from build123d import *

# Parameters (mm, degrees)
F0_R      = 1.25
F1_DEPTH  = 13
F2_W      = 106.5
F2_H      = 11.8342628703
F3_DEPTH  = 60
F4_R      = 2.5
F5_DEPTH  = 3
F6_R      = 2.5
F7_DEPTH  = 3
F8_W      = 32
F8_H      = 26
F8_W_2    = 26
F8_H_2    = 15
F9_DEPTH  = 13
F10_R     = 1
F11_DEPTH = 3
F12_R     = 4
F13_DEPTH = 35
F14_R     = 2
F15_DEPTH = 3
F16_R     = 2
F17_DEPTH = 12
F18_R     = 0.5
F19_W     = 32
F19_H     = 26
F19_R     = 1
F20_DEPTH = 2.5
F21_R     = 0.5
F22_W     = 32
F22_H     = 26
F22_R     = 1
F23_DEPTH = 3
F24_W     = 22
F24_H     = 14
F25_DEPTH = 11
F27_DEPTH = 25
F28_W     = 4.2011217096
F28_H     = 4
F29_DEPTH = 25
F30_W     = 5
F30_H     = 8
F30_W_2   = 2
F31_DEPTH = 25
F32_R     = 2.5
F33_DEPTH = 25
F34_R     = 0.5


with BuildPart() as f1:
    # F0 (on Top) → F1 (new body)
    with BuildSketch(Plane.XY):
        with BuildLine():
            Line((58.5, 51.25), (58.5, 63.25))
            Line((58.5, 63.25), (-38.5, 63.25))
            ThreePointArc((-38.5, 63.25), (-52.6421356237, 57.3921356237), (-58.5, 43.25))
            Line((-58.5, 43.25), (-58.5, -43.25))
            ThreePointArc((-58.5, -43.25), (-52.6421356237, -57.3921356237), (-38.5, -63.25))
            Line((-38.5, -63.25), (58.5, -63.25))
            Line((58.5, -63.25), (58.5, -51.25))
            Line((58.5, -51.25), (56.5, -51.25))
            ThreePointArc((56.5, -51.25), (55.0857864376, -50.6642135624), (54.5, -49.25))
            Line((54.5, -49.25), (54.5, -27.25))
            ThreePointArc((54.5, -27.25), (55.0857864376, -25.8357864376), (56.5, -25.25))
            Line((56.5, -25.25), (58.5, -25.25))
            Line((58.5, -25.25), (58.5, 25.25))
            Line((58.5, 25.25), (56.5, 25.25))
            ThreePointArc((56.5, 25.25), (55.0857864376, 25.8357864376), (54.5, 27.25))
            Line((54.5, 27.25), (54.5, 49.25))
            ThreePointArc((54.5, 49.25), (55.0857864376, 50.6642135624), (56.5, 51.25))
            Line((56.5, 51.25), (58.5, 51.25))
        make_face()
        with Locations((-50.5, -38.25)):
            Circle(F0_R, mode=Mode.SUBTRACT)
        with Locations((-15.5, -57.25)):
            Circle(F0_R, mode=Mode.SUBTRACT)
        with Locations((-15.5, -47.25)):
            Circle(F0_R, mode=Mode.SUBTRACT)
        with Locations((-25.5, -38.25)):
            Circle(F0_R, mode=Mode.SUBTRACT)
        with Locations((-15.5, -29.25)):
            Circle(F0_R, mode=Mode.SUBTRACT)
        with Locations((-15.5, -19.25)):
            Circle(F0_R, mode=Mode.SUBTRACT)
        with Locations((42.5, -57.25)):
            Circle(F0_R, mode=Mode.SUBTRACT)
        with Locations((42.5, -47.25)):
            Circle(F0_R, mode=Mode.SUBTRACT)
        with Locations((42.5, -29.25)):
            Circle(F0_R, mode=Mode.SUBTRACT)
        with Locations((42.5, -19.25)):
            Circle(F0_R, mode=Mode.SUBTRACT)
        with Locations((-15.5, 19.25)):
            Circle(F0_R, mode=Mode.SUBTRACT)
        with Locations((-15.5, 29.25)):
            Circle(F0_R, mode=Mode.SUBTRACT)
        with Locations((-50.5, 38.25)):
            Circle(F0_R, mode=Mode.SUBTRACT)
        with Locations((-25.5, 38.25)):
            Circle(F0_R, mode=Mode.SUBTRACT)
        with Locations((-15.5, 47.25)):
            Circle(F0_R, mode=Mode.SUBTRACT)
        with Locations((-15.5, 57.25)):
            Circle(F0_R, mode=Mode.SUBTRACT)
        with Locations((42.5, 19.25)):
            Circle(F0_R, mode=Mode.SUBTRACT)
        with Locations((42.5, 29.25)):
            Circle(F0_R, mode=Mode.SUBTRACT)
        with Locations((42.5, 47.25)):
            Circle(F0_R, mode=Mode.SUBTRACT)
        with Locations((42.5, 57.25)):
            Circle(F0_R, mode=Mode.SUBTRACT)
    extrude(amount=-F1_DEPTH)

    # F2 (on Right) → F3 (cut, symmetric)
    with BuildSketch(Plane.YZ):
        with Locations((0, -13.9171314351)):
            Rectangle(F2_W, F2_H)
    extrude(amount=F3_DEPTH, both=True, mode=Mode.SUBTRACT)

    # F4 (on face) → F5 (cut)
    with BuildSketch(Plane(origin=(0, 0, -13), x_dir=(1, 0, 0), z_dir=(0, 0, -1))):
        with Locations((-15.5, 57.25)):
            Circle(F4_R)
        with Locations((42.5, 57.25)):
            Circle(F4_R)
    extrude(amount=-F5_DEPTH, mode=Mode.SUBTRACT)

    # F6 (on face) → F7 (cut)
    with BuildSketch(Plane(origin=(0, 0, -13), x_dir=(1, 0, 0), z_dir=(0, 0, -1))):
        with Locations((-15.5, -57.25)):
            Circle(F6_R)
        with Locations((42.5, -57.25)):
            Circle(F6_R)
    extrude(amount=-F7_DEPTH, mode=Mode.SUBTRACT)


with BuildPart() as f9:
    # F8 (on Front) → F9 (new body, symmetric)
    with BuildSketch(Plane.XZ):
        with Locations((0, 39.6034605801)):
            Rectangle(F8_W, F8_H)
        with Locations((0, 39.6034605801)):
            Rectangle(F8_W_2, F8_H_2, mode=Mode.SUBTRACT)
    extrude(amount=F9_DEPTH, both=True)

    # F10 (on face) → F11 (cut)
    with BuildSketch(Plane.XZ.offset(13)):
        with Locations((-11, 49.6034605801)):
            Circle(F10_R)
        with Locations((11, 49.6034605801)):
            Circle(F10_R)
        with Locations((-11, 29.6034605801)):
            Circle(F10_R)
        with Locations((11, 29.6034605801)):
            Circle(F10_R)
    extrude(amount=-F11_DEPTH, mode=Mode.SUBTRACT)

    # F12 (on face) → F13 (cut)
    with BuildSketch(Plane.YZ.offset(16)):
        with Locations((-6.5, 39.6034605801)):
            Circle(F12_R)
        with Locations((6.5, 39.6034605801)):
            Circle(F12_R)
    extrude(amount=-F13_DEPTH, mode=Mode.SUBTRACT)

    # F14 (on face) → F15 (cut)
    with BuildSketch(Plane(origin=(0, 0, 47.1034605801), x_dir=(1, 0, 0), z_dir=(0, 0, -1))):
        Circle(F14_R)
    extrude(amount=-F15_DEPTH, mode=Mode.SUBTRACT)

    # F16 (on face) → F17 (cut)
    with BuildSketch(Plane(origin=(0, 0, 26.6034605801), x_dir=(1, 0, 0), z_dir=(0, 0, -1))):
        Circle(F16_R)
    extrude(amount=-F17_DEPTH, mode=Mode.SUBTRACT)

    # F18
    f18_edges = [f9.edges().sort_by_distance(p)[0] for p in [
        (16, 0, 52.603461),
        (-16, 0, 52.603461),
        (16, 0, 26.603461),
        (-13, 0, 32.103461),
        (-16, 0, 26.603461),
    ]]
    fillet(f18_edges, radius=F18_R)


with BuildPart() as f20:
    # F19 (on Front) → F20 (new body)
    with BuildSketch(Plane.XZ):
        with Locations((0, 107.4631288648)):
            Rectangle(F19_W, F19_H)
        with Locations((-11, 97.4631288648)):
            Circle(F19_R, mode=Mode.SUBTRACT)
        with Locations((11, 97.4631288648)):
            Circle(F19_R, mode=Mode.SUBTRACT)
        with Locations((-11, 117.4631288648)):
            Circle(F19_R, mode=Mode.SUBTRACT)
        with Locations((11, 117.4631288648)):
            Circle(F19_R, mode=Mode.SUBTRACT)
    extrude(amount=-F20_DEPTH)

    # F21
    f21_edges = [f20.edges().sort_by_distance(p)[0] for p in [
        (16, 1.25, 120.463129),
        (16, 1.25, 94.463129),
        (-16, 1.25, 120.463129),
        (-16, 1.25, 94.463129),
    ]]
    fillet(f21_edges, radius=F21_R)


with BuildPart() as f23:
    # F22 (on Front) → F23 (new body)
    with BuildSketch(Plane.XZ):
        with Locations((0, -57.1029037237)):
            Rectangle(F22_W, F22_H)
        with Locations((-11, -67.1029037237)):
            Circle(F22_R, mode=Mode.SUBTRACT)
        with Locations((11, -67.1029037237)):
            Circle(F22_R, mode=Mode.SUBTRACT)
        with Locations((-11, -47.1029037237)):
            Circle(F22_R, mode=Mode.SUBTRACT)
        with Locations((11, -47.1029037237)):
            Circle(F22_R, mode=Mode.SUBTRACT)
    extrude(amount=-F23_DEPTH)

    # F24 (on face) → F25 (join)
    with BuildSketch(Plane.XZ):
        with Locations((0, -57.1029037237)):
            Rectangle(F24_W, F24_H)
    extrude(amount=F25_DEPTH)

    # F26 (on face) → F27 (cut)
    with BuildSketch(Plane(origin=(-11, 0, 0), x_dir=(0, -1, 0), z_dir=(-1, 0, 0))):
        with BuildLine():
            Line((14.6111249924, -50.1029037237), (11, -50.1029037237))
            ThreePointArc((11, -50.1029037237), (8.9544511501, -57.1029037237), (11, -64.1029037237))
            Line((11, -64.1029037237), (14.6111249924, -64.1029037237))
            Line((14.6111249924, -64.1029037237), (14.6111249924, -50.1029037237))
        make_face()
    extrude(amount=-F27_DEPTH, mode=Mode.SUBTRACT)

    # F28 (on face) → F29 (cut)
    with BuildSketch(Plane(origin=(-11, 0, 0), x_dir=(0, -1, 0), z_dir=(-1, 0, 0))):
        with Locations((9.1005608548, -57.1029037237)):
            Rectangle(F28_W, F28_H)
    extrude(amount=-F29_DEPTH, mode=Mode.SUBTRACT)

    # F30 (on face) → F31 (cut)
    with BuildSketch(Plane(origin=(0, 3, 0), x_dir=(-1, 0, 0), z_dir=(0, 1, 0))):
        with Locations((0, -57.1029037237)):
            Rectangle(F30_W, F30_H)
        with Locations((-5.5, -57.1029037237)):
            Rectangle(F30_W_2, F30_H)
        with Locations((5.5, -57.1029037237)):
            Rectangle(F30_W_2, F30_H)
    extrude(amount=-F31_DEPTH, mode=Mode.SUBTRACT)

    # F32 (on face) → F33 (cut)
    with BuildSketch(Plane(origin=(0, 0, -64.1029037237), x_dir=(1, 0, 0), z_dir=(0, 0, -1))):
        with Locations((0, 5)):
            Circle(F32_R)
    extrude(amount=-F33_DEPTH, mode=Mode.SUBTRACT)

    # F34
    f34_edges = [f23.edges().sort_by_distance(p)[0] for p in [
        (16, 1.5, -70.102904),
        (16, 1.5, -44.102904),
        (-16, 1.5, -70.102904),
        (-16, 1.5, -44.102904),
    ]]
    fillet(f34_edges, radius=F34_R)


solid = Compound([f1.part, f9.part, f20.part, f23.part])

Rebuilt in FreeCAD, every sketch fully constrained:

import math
import FreeCAD as App
import Part
import Sketcher
Q = App.Units.Quantity


def edges_at(feature, points):
    """Names of the edges that pass closest to the given points."""
    edges = feature.Shape.Edges
    near = lambda p: min(range(len(edges)), key=lambda i: edges[i].distToShape(Part.Vertex(*p))[0])
    return sorted({f"Edge{near(p) + 1}" for p in points})


def add_polygon(sketch, points):
    """Adds a closed chain of lines whose ends are joined by coincident constraints."""
    first, n = sketch.GeometryCount, len(points)
    for a, b in zip(points, points[1:] + points[:1]):
        sketch.addGeometry(Part.LineSegment(App.Vector(*a, 0), App.Vector(*b, 0)), False)
    for i in range(n):
        sketch.addConstraint(Sketcher.Constraint("Coincident", first + i, 2, first + (i + 1) % n, 1))

doc = App.newDocument("Part")
body = doc.addObject("PartDesign::Body", "Body")

# Sketch on XY plane
sketch1 = doc.addObject("Sketcher::SketchObject", "Sketch")
body.addObject(sketch1)
sketch1.AttachmentSupport = (doc.XY_Plane, [""])
sketch1.MapMode = "FlatFace"
sketch1.addGeometry([
    Part.LineSegment(App.Vector(58.5, 51.2, 0), App.Vector(58.5, 63.2, 0)),  # 0
    Part.LineSegment(App.Vector(58.5, 63.2, 0), App.Vector(-38.5, 63.2, 0)),  # 1
    Part.ArcOfCircle(Part.Circle(App.Vector(-38.5, 43.2, 0), App.Vector(0, 0, 1), 20), math.radians(90), math.radians(180)),  # 2
    Part.LineSegment(App.Vector(-58.5, 43.2, 0), App.Vector(-58.5, -43.2, 0)),  # 3
    Part.ArcOfCircle(Part.Circle(App.Vector(-38.5, -43.2, 0), App.Vector(0, 0, 1), 20), math.radians(180), math.radians(270)),  # 4
    Part.LineSegment(App.Vector(-38.5, -63.2, 0), App.Vector(58.5, -63.2, 0)),  # 5
    Part.LineSegment(App.Vector(58.5, -63.2, 0), App.Vector(58.5, -51.2, 0)),  # 6
    Part.LineSegment(App.Vector(58.5, -51.2, 0), App.Vector(56.5, -51.2, 0)),  # 7
    Part.ArcOfCircle(Part.Circle(App.Vector(56.5, -49.2, 0), App.Vector(0, 0, 1), 2), math.radians(180), math.radians(270)),  # 8
    Part.LineSegment(App.Vector(54.5, -49.2, 0), App.Vector(54.5, -27.2, 0)),  # 9
    Part.ArcOfCircle(Part.Circle(App.Vector(56.5, -27.2, 0), App.Vector(0, 0, 1), 2), math.radians(90), math.radians(180)),  # 10
    Part.LineSegment(App.Vector(56.5, -25.2, 0), App.Vector(58.5, -25.2, 0)),  # 11
    Part.LineSegment(App.Vector(58.5, -25.2, 0), App.Vector(58.5, 25.2, 0)),  # 12
    Part.LineSegment(App.Vector(58.5, 25.2, 0), App.Vector(56.5, 25.2, 0)),  # 13
    Part.ArcOfCircle(Part.Circle(App.Vector(56.5, 27.2, 0), App.Vector(0, 0, 1), 2), math.radians(180), math.radians(270)),  # 14
    Part.LineSegment(App.Vector(54.5, 27.2, 0), App.Vector(54.5, 49.2, 0)),  # 15
    Part.ArcOfCircle(Part.Circle(App.Vector(56.5, 49.2, 0), App.Vector(0, 0, 1), 2), math.radians(90), math.radians(180)),  # 16
    Part.LineSegment(App.Vector(56.5, 51.2, 0), App.Vector(58.5, 51.2, 0)),  # 17
    Part.Circle(App.Vector(-50.5, -38.2, 0), App.Vector(0, 0, 1), 1.2),  # 18
    Part.Circle(App.Vector(-15.5, -57.2, 0), App.Vector(0, 0, 1), 1.2),  # 19
    Part.Circle(App.Vector(-15.5, -47.2, 0), App.Vector(0, 0, 1), 1.2),  # 20
    Part.Circle(App.Vector(-25.5, -38.2, 0), App.Vector(0, 0, 1), 1.2),  # 21
    Part.Circle(App.Vector(-15.5, -29.2, 0), App.Vector(0, 0, 1), 1.2),  # 22
    Part.Circle(App.Vector(-15.5, -19.2, 0), App.Vector(0, 0, 1), 1.2),  # 23
    Part.Circle(App.Vector(42.5, -57.2, 0), App.Vector(0, 0, 1), 1.2),  # 24
    Part.Circle(App.Vector(42.5, -47.2, 0), App.Vector(0, 0, 1), 1.2),  # 25
    Part.Circle(App.Vector(42.5, -29.2, 0), App.Vector(0, 0, 1), 1.2),  # 26
    Part.Circle(App.Vector(42.5, -19.2, 0), App.Vector(0, 0, 1), 1.2),  # 27
    Part.Circle(App.Vector(-15.5, 19.2, 0), App.Vector(0, 0, 1), 1.2),  # 28
    Part.Circle(App.Vector(-50.5, 38.2, 0), App.Vector(0, 0, 1), 1.2),  # 29
    Part.Circle(App.Vector(-25.5, 38.2, 0), App.Vector(0, 0, 1), 1.2),  # 30
    Part.Circle(App.Vector(-15.5, 29.2, 0), App.Vector(0, 0, 1), 1.2),  # 31
    Part.Circle(App.Vector(-15.5, 47.2, 0), App.Vector(0, 0, 1), 1.2),  # 32
    Part.Circle(App.Vector(-15.5, 57.2, 0), App.Vector(0, 0, 1), 1.2),  # 33
    Part.Circle(App.Vector(42.5, 19.2, 0), App.Vector(0, 0, 1), 1.2),  # 34
    Part.Circle(App.Vector(42.5, 29.2, 0), App.Vector(0, 0, 1), 1.2),  # 35
    Part.Circle(App.Vector(42.5, 47.2, 0), App.Vector(0, 0, 1), 1.2),  # 36
    Part.Circle(App.Vector(42.5, 57.2, 0), App.Vector(0, 0, 1), 1.2),  # 37
], False)
sketch1.addConstraint([
    Sketcher.Constraint("Coincident", 0, 2, 1, 1),
    Sketcher.Constraint("Tangent", 1, 2, 2, 1),
    Sketcher.Constraint("Tangent", 2, 2, 3, 1),
    Sketcher.Constraint("Tangent", 3, 2, 4, 1),
    Sketcher.Constraint("Tangent", 4, 2, 5, 1),
    Sketcher.Constraint("Coincident", 5, 2, 6, 1),
    Sketcher.Constraint("Coincident", 6, 2, 7, 1),
    Sketcher.Constraint("Tangent", 7, 2, 8, 2),
    Sketcher.Constraint("Tangent", 8, 1, 9, 1),
    Sketcher.Constraint("Tangent", 9, 2, 10, 2),
    Sketcher.Constraint("Tangent", 10, 1, 11, 1),
    Sketcher.Constraint("Coincident", 11, 2, 12, 1),
    Sketcher.Constraint("Coincident", 12, 2, 13, 1),
    Sketcher.Constraint("Tangent", 13, 2, 14, 2),
    Sketcher.Constraint("Tangent", 14, 1, 15, 1),
    Sketcher.Constraint("Tangent", 15, 2, 16, 2),
    Sketcher.Constraint("Tangent", 16, 1, 17, 1),
    Sketcher.Constraint("Coincident", 17, 2, 0, 1),
    Sketcher.Constraint("Vertical", 0),
    Sketcher.Constraint("Horizontal", 1),
    Sketcher.Constraint("Vertical", 3),
    Sketcher.Constraint("Horizontal", 5),
    Sketcher.Constraint("Vertical", 6),
    Sketcher.Constraint("Horizontal", 7),
    Sketcher.Constraint("Vertical", 9),
    Sketcher.Constraint("Horizontal", 11),
    Sketcher.Constraint("Vertical", 12),
    Sketcher.Constraint("Horizontal", 13),
    Sketcher.Constraint("Vertical", 15),
    Sketcher.Constraint("Horizontal", 17),
    Sketcher.Constraint("Equal", 2, 4),
    Sketcher.Constraint("Equal", 8, 10),
    Sketcher.Constraint("Equal", 10, 14),
    Sketcher.Constraint("Equal", 14, 16),
    Sketcher.Constraint("Equal", 18, 19),
    Sketcher.Constraint("Equal", 19, 20),
    Sketcher.Constraint("Equal", 20, 21),
    Sketcher.Constraint("Equal", 21, 22),
    Sketcher.Constraint("Equal", 22, 23),
    Sketcher.Constraint("Equal", 23, 24),
    Sketcher.Constraint("Equal", 24, 25),
    Sketcher.Constraint("Equal", 25, 26),
    Sketcher.Constraint("Equal", 26, 27),
    Sketcher.Constraint("Equal", 27, 28),
    Sketcher.Constraint("Equal", 28, 29),
    Sketcher.Constraint("Equal", 29, 30),
    Sketcher.Constraint("Equal", 30, 31),
    Sketcher.Constraint("Equal", 31, 32),
    Sketcher.Constraint("Equal", 32, 33),
    Sketcher.Constraint("Equal", 33, 34),
    Sketcher.Constraint("Equal", 34, 35),
    Sketcher.Constraint("Equal", 35, 36),
    Sketcher.Constraint("Equal", 36, 37),
    Sketcher.Constraint("Symmetric", 10, 3, 14, 3, -1),
    Sketcher.Constraint("Symmetric", 23, 3, 28, 3, -1),
    Sketcher.Constraint("Symmetric", 18, 3, 29, 3, -1),
    Sketcher.Constraint("Symmetric", 21, 3, 30, 3, -1),
    Sketcher.Constraint("Symmetric", 22, 3, 31, 3, -1),
    Sketcher.Constraint("Symmetric", 20, 3, 32, 3, -1),
    Sketcher.Constraint("Symmetric", 19, 3, 33, 3, -1),
    Sketcher.Constraint("Symmetric", 27, 3, 34, 3, -1),
    Sketcher.Constraint("Symmetric", 26, 3, 35, 3, -1),
    Sketcher.Constraint("Symmetric", 25, 3, 36, 3, -1),
    Sketcher.Constraint("Symmetric", 24, 3, 37, 3, -1),
    Sketcher.Constraint("Symmetric", 0, 2, 5, 2, -1),
    Sketcher.Constraint("Horizontal", 18, 3, 21, 3),
    Sketcher.Constraint("Horizontal", 19, 3, 24, 3),
    Sketcher.Constraint("Horizontal", 20, 3, 25, 3),
    Sketcher.Constraint("Horizontal", 22, 3, 26, 3),
    Sketcher.Constraint("Horizontal", 23, 3, 27, 3),
    Sketcher.Constraint("Vertical", 19, 3, 20, 3),
    Sketcher.Constraint("Vertical", 20, 3, 22, 3),
    Sketcher.Constraint("Vertical", 22, 3, 23, 3),
    Sketcher.Constraint("Vertical", 24, 3, 25, 3),
    Sketcher.Constraint("Vertical", 25, 3, 26, 3),
    Sketcher.Constraint("Vertical", 26, 3, 27, 3),
    Sketcher.Constraint("Vertical", 6, 2, 11, 2),
    Sketcher.Constraint("Equal", 0, 6),
    Sketcher.Constraint("Radius", 2, Q("20 mm")),
    Sketcher.Constraint("Radius", 8, Q("2 mm")),
    Sketcher.Constraint("Diameter", 18, Q("2.5 mm")),
    Sketcher.Constraint("DistanceX", 1, 2, 1, 1, Q("97 mm")),
    Sketcher.Constraint("DistanceX", 7, 2, 7, 1, Q("2 mm")),
    Sketcher.Constraint("DistanceY", 0, 1, 0, 2, Q("12 mm")),
    Sketcher.Constraint("DistanceY", 9, 1, 9, 2, Q("22 mm")),
    Sketcher.Constraint("DistanceY", 3, 2, 3, 1, Q("86.5 mm")),
    Sketcher.Constraint("DistanceX", 18, 3, 4, 3, Q("12 mm")),
    Sketcher.Constraint("DistanceY", 4, 3, 18, 3, Q("5 mm")),
    Sketcher.Constraint("DistanceX", 4, 3, 19, 3, Q("23 mm")),
    Sketcher.Constraint("DistanceY", 19, 3, 4, 3, Q("14 mm")),
    Sketcher.Constraint("DistanceY", 19, 3, 20, 3, Q("10 mm")),
    Sketcher.Constraint("DistanceX", 21, 3, 20, 3, Q("10 mm")),
    Sketcher.Constraint("DistanceY", 21, 3, 22, 3, Q("9 mm")),
    Sketcher.Constraint("DistanceY", 22, 3, 23, 3, Q("10 mm")),
    Sketcher.Constraint("DistanceX", 24, 3, 8, 3, Q("14 mm")),
    Sketcher.Constraint("DistanceX", 2, 3, -1, 1, Q("38.5 mm")),
])
pad1 = doc.addObject("PartDesign::Pad", "Pad")
body.addObject(pad1)
pad1.Profile = sketch1
pad1.Length = 13
pad1.Reversed = True

# Sketch on YZ plane
sketch2 = doc.addObject("Sketcher::SketchObject", "Sketch001")
body.addObject(sketch2)
sketch2.AttachmentSupport = (doc.YZ_Plane, [""])
sketch2.MapMode = "FlatFace"
add_polygon(sketch2, [(-53, -8), (-53, -20), (53, -20), (53, -8)])  # lines 0-3
sketch2.addConstraint([
    Sketcher.Constraint("Vertical", 0),
    Sketcher.Constraint("Horizontal", 1),
    Sketcher.Constraint("Vertical", 2),
    Sketcher.Constraint("Horizontal", 3),
    Sketcher.Constraint("DistanceX", 1, 1, 1, 2, Q("106.5 mm")),
    Sketcher.Constraint("DistanceY", 2, 2, -1, 1, Q("8 mm")),
    Sketcher.Constraint("DistanceX", 0, 2, -1, 1, Q("53.25 mm")),
    Sketcher.Constraint("DistanceY", 0, 2, 0, 1, Q("11.834263 mm")),
])
pocket1 = doc.addObject("PartDesign::Pocket", "Pocket")
body.addObject(pocket1)
pocket1.Profile = sketch2
pocket1.Length = 120
pocket1.Midplane = True

# Sketch on XY plane
sketch3 = doc.addObject("Sketcher::SketchObject", "Sketch002")
body.addObject(sketch3)
sketch3.AttachmentSupport = (doc.XY_Plane, [""])
sketch3.MapMode = "FlatFace"
sketch3.AttachmentOffset = App.Placement(App.Vector(0, 0, -13), App.Rotation())
sketch3.addGeometry([
    Part.Circle(App.Vector(-15.5, -57.2, 0), App.Vector(0, 0, 1), 2.5),
    Part.Circle(App.Vector(42.5, -57.2, 0), App.Vector(0, 0, 1), 2.5),
], False)
sketch3.addConstraint([
    Sketcher.Constraint("Equal", 0, 1),
    Sketcher.Constraint("Horizontal", 0, 3, 1, 3),
    Sketcher.Constraint("Diameter", 0, Q("5 mm")),
    Sketcher.Constraint("DistanceX", 0, 3, 1, 3, Q("58 mm")),
    Sketcher.Constraint("DistanceX", 0, 3, -1, 1, Q("15.5 mm")),
    Sketcher.Constraint("DistanceY", 0, 3, -1, 1, Q("57.25 mm")),
])
pocket2 = doc.addObject("PartDesign::Pocket", "Pocket001")
body.addObject(pocket2)
pocket2.Profile = sketch3
pocket2.Length = 3
pocket2.Reversed = True

# Sketch on XY plane
sketch4 = doc.addObject("Sketcher::SketchObject", "Sketch003")
body.addObject(sketch4)
sketch4.AttachmentSupport = (doc.XY_Plane, [""])
sketch4.MapMode = "FlatFace"
sketch4.AttachmentOffset = App.Placement(App.Vector(0, 0, -13), App.Rotation())
sketch4.addGeometry([
    Part.Circle(App.Vector(-15.5, 57.2, 0), App.Vector(0, 0, 1), 2.5),
    Part.Circle(App.Vector(42.5, 57.2, 0), App.Vector(0, 0, 1), 2.5),
], False)
sketch4.addConstraint([
    Sketcher.Constraint("Equal", 0, 1),
    Sketcher.Constraint("Horizontal", 0, 3, 1, 3),
    Sketcher.Constraint("Diameter", 0, Q("5 mm")),
    Sketcher.Constraint("DistanceX", 0, 3, 1, 3, Q("58 mm")),
    Sketcher.Constraint("DistanceX", 0, 3, -1, 1, Q("15.5 mm")),
    Sketcher.Constraint("DistanceY", -1, 1, 0, 3, Q("57.25 mm")),
])
pocket3 = doc.addObject("PartDesign::Pocket", "Pocket002")
body.addObject(pocket3)
pocket3.Profile = sketch4
pocket3.Length = 3
pocket3.Reversed = True
body2 = doc.addObject("PartDesign::Body", "Body001")

# Sketch on XZ plane
sketch5 = doc.addObject("Sketcher::SketchObject", "Sketch004")
body2.addObject(sketch5)
sketch5.AttachmentSupport = (doc.getObject("XZ_Plane001"), [""])
sketch5.MapMode = "FlatFace"
add_polygon(sketch5, [(-16, 53), (-16, 27), (16, 27), (16, 53)])  # lines 0-3
add_polygon(sketch5, [(13, 32), (-13, 32), (-13, 47), (13, 47)])  # lines 4-7
sketch5.addConstraint([
    Sketcher.Constraint("Vertical", 0),
    Sketcher.Constraint("Horizontal", 1),
    Sketcher.Constraint("Vertical", 2),
    Sketcher.Constraint("Horizontal", 3),
    Sketcher.Constraint("Horizontal", 4),
    Sketcher.Constraint("Vertical", 5),
    Sketcher.Constraint("Horizontal", 6),
    Sketcher.Constraint("Vertical", 7),
    Sketcher.Constraint("Equal", 6, 0),
    Sketcher.Constraint("DistanceX", 1, 1, 1, 2, Q("32 mm")),
    Sketcher.Constraint("DistanceX", 4, 2, 4, 1, Q("26 mm")),
    Sketcher.Constraint("DistanceY", 5, 1, 5, 2, Q("15 mm")),
    Sketcher.Constraint("DistanceX", 0, 2, -1, 1, Q("16 mm")),
    Sketcher.Constraint("DistanceX", 4, 2, -1, 1, Q("13 mm")),
    Sketcher.Constraint("DistanceY", 0, 2, 4, 2, Q("5.5 mm")),
    Sketcher.Constraint("DistanceY", -1, 1, 0, 2, Q("26.603461 mm")),
])
pad2 = doc.addObject("PartDesign::Pad", "Pad001")
body2.addObject(pad2)
pad2.Profile = sketch5
pad2.Length = 26
pad2.Midplane = True

# Sketch on XZ plane
sketch6 = doc.addObject("Sketcher::SketchObject", "Sketch005")
body2.addObject(sketch6)
sketch6.AttachmentSupport = (doc.getObject("XZ_Plane001"), [""])
sketch6.MapMode = "FlatFace"
sketch6.AttachmentOffset = App.Placement(App.Vector(0, 0, 13), App.Rotation())
sketch6.addGeometry([
    Part.Circle(App.Vector(-11, 49.6, 0), App.Vector(0, 0, 1), 1),
    Part.Circle(App.Vector(11, 49.6, 0), App.Vector(0, 0, 1), 1),
    Part.Circle(App.Vector(-11, 29.6, 0), App.Vector(0, 0, 1), 1),
    Part.Circle(App.Vector(11, 29.6, 0), App.Vector(0, 0, 1), 1),
], False)
sketch6.addConstraint([
    Sketcher.Constraint("Equal", 0, 1),
    Sketcher.Constraint("Equal", 1, 2),
    Sketcher.Constraint("Equal", 2, 3),
    Sketcher.Constraint("Symmetric", 0, 3, 1, 3, -2),
    Sketcher.Constraint("Symmetric", 2, 3, 3, 3, -2),
    Sketcher.Constraint("Vertical", 0, 3, 2, 3),
    Sketcher.Constraint("Diameter", 0, Q("2 mm")),
    Sketcher.Constraint("DistanceX", 0, 3, -1, 1, Q("11 mm")),
    Sketcher.Constraint("DistanceY", 2, 3, 0, 3, Q("20 mm")),
    Sketcher.Constraint("DistanceY", -1, 1, 0, 3, Q("49.603461 mm")),
])
pocket4 = doc.addObject("PartDesign::Pocket", "Pocket003")
body2.addObject(pocket4)
pocket4.Profile = sketch6
pocket4.Length = 3

# Sketch on YZ plane
sketch7 = doc.addObject("Sketcher::SketchObject", "Sketch006")
body2.addObject(sketch7)
sketch7.AttachmentSupport = (doc.getObject("YZ_Plane001"), [""])
sketch7.MapMode = "FlatFace"
sketch7.AttachmentOffset = App.Placement(App.Vector(0, 0, 16), App.Rotation())
sketch7.addGeometry([
    Part.Circle(App.Vector(-6.5, 39.6, 0), App.Vector(0, 0, 1), 4),
    Part.Circle(App.Vector(6.5, 39.6, 0), App.Vector(0, 0, 1), 4),
], False)
sketch7.addConstraint([
    Sketcher.Constraint("Equal", 0, 1),
    Sketcher.Constraint("Symmetric", 0, 3, 1, 3, -2),
    Sketcher.Constraint("Diameter", 0, Q("8 mm")),
    Sketcher.Constraint("DistanceX", 0, 3, 1, 3, Q("13 mm")),
    Sketcher.Constraint("DistanceY", -1, 1, 0, 3, Q("39.603461 mm")),
])
pocket5 = doc.addObject("PartDesign::Pocket", "Pocket004")
body2.addObject(pocket5)
pocket5.Profile = sketch7
pocket5.Length = 35

# Sketch on XY plane
sketch8 = doc.addObject("Sketcher::SketchObject", "Sketch007")
body2.addObject(sketch8)
sketch8.AttachmentSupport = (doc.getObject("XY_Plane001"), [""])
sketch8.MapMode = "FlatFace"
sketch8.AttachmentOffset = App.Placement(App.Vector(0, 0, 47.103461), App.Rotation())
sketch8.addGeometry(Part.Circle(App.Vector(0, 0, 0), App.Vector(0, 0, 1), 2), False)
sketch8.addConstraint([
    Sketcher.Constraint("Coincident", 0, 3, -1, 1),
    Sketcher.Constraint("Diameter", 0, Q("4 mm")),
])
pocket6 = doc.addObject("PartDesign::Pocket", "Pocket005")
body2.addObject(pocket6)
pocket6.Profile = sketch8
pocket6.Length = 3
pocket6.Reversed = True

# Sketch on XY plane
sketch9 = doc.addObject("Sketcher::SketchObject", "Sketch008")
body2.addObject(sketch9)
sketch9.AttachmentSupport = (doc.getObject("XY_Plane001"), [""])
sketch9.MapMode = "FlatFace"
sketch9.AttachmentOffset = App.Placement(App.Vector(0, 0, 26.603461), App.Rotation())
sketch9.addGeometry(Part.Circle(App.Vector(0, 0, 0), App.Vector(0, 0, 1), 2), False)
sketch9.addConstraint([
    Sketcher.Constraint("Coincident", 0, 3, -1, 1),
    Sketcher.Constraint("Diameter", 0, Q("4 mm")),
])
pocket7 = doc.addObject("PartDesign::Pocket", "Pocket006")
body2.addObject(pocket7)
pocket7.Profile = sketch9
pocket7.Length = 12
pocket7.Reversed = True
doc.recompute()

fillet = doc.addObject("PartDesign::Fillet", "Fillet")
body2.addObject(fillet)
fillet.Base = (pocket7, edges_at(pocket7, [
    (16, 0, 52.603),
    (-16, 0, 52.603),
    (16, 0, 26.603),
    (-13, 0, 32.103),
    (-16, 0, 26.603),
]))
fillet.Radius = 0.5
body3 = doc.addObject("PartDesign::Body", "Body002")

# Sketch on XZ plane
sketch10 = doc.addObject("Sketcher::SketchObject", "Sketch009")
body3.addObject(sketch10)
sketch10.AttachmentSupport = (doc.getObject("XZ_Plane002"), [""])
sketch10.MapMode = "FlatFace"
add_polygon(sketch10, [(-16, 120.5), (-16, 94.5), (16, 94.5), (16, 120.5)])  # lines 0-3
sketch10.addGeometry(Part.Circle(App.Vector(-11, 97.5, 0), App.Vector(0, 0, 1), 1), False)  # 4
sketch10.addGeometry(Part.Circle(App.Vector(11, 97.5, 0), App.Vector(0, 0, 1), 1), False)  # 5
sketch10.addGeometry(Part.Circle(App.Vector(-11, 117.5, 0), App.Vector(0, 0, 1), 1), False)  # 6
sketch10.addGeometry(Part.Circle(App.Vector(11, 117.5, 0), App.Vector(0, 0, 1), 1), False)  # 7
sketch10.addConstraint([
    Sketcher.Constraint("Vertical", 0),
    Sketcher.Constraint("Horizontal", 1),
    Sketcher.Constraint("Vertical", 2),
    Sketcher.Constraint("Horizontal", 3),
    Sketcher.Constraint("Equal", 4, 5),
    Sketcher.Constraint("Equal", 5, 6),
    Sketcher.Constraint("Equal", 6, 7),
    Sketcher.Constraint("Symmetric", 4, 3, 5, 3, -2),
    Sketcher.Constraint("Symmetric", 6, 3, 7, 3, -2),
    Sketcher.Constraint("Vertical", 4, 3, 6, 3),
    Sketcher.Constraint("Diameter", 4, Q("2 mm")),
    Sketcher.Constraint("DistanceX", 1, 1, 1, 2, Q("32 mm")),
    Sketcher.Constraint("DistanceY", 0, 2, 0, 1, Q("26 mm")),
    Sketcher.Constraint("DistanceX", 4, 3, -1, 1, Q("11 mm")),
    Sketcher.Constraint("DistanceX", 0, 2, -1, 1, Q("16 mm")),
    Sketcher.Constraint("DistanceY", 4, 3, 6, 3, Q("20 mm")),
    Sketcher.Constraint("DistanceY", 0, 2, 4, 3, Q("3 mm")),
    Sketcher.Constraint("DistanceY", -1, 1, 4, 3, Q("97.463129 mm")),
])
pad3 = doc.addObject("PartDesign::Pad", "Pad002")
body3.addObject(pad3)
pad3.Profile = sketch10
pad3.Length = 2.5
pad3.Reversed = True
doc.recompute()

fillet2 = doc.addObject("PartDesign::Fillet", "Fillet001")
body3.addObject(fillet2)
fillet2.Base = (pad3, edges_at(pad3, [
    (16, 1.25, 120.463),
    (16, 1.25, 94.463),
    (-16, 1.25, 120.463),
    (-16, 1.25, 94.463),
]))
fillet2.Radius = 0.5
body4 = doc.addObject("PartDesign::Body", "Body003")

# Sketch on XZ plane
sketch11 = doc.addObject("Sketcher::SketchObject", "Sketch010")
body4.addObject(sketch11)
sketch11.AttachmentSupport = (doc.getObject("XZ_Plane003"), [""])
sketch11.MapMode = "FlatFace"
add_polygon(sketch11, [(-16, -44.1), (-16, -70.1), (16, -70.1), (16, -44.1)])  # lines 0-3
sketch11.addGeometry(Part.Circle(App.Vector(-11, -67.1, 0), App.Vector(0, 0, 1), 1), False)  # 4
sketch11.addGeometry(Part.Circle(App.Vector(11, -67.1, 0), App.Vector(0, 0, 1), 1), False)  # 5
sketch11.addGeometry(Part.Circle(App.Vector(-11, -47.1, 0), App.Vector(0, 0, 1), 1), False)  # 6
sketch11.addGeometry(Part.Circle(App.Vector(11, -47.1, 0), App.Vector(0, 0, 1), 1), False)  # 7
sketch11.addConstraint([
    Sketcher.Constraint("Vertical", 0),
    Sketcher.Constraint("Horizontal", 1),
    Sketcher.Constraint("Vertical", 2),
    Sketcher.Constraint("Horizontal", 3),
    Sketcher.Constraint("Equal", 4, 5),
    Sketcher.Constraint("Equal", 5, 6),
    Sketcher.Constraint("Equal", 6, 7),
    Sketcher.Constraint("Symmetric", 4, 3, 5, 3, -2),
    Sketcher.Constraint("Symmetric", 6, 3, 7, 3, -2),
    Sketcher.Constraint("Vertical", 4, 3, 6, 3),
    Sketcher.Constraint("Diameter", 4, Q("2 mm")),
    Sketcher.Constraint("DistanceX", 1, 1, 1, 2, Q("32 mm")),
    Sketcher.Constraint("DistanceY", 0, 2, 0, 1, Q("26 mm")),
    Sketcher.Constraint("DistanceX", 4, 3, -1, 1, Q("11 mm")),
    Sketcher.Constraint("DistanceX", 0, 2, -1, 1, Q("16 mm")),
    Sketcher.Constraint("DistanceY", 4, 3, 6, 3, Q("20 mm")),
    Sketcher.Constraint("DistanceY", 0, 2, 4, 3, Q("3 mm")),
    Sketcher.Constraint("DistanceY", 4, 3, -1, 1, Q("67.102904 mm")),
])
pad4 = doc.addObject("PartDesign::Pad", "Pad003")
body4.addObject(pad4)
pad4.Profile = sketch11
pad4.Length = 3
pad4.Reversed = True

# Sketch on XZ plane
sketch12 = doc.addObject("Sketcher::SketchObject", "Sketch011")
body4.addObject(sketch12)
sketch12.AttachmentSupport = (doc.getObject("XZ_Plane003"), [""])
sketch12.MapMode = "FlatFace"
add_polygon(sketch12, [(-11, -50), (-11, -64), (11, -64), (11, -50)])  # lines 0-3
sketch12.addConstraint([
    Sketcher.Constraint("Vertical", 0),
    Sketcher.Constraint("Horizontal", 1),
    Sketcher.Constraint("Vertical", 2),
    Sketcher.Constraint("Horizontal", 3),
    Sketcher.Constraint("DistanceX", 1, 1, 1, 2, Q("22 mm")),
    Sketcher.Constraint("DistanceY", 0, 2, 0, 1, Q("14 mm")),
    Sketcher.Constraint("DistanceX", 0, 2, -1, 1, Q("11 mm")),
    Sketcher.Constraint("DistanceY", 0, 2, -1, 1, Q("64.102904 mm")),
])
pad5 = doc.addObject("PartDesign::Pad", "Pad004")
body4.addObject(pad5)
pad5.Profile = sketch12
pad5.Length = 11

# Sketch on YZ plane
sketch13 = doc.addObject("Sketcher::SketchObject", "Sketch012")
body4.addObject(sketch13)
sketch13.AttachmentSupport = (doc.getObject("YZ_Plane003"), [""])
sketch13.MapMode = "FlatFace"
sketch13.AttachmentOffset = App.Placement(App.Vector(0, 0, -11), App.Rotation())
sketch13.addGeometry([
    Part.LineSegment(App.Vector(-14.6, -50.1, 0), App.Vector(-11, -50.1, 0)),
    Part.ArcOfCircle(Part.Circle(App.Vector(-22, -57.1, 0), App.Vector(0, 0, 1), 13), math.radians(-33), math.radians(33)),
    Part.LineSegment(App.Vector(-11, -64.1, 0), App.Vector(-14.6, -64.1, 0)),
    Part.LineSegment(App.Vector(-14.6, -64.1, 0), App.Vector(-14.6, -50.1, 0)),
], False)
sketch13.addConstraint([
    Sketcher.Constraint("Coincident", 0, 2, 1, 2),
    Sketcher.Constraint("Coincident", 1, 1, 2, 1),
    Sketcher.Constraint("Coincident", 2, 2, 3, 1),
    Sketcher.Constraint("Coincident", 3, 2, 0, 1),
    Sketcher.Constraint("Horizontal", 0),
    Sketcher.Constraint("Horizontal", 2),
    Sketcher.Constraint("Vertical", 3),
    Sketcher.Constraint("Vertical", 0, 2, 1, 1),
    Sketcher.Constraint("Radius", 1, Q("13 mm")),
    Sketcher.Constraint("DistanceY", 3, 1, 3, 2, Q("14 mm")),
    Sketcher.Constraint("DistanceX", 0, 2, -1, 1, Q("11 mm")),
    Sketcher.Constraint("DistanceX", 0, 1, 0, 2, Q("3.611125 mm")),
    Sketcher.Constraint("DistanceY", 1, 3, -1, 1, Q("57.102904 mm")),
])
pocket8 = doc.addObject("PartDesign::Pocket", "Pocket007")
body4.addObject(pocket8)
pocket8.Profile = sketch13
pocket8.Length = 25
pocket8.Reversed = True

# Sketch on YZ plane
sketch14 = doc.addObject("Sketcher::SketchObject", "Sketch013")
body4.addObject(sketch14)
sketch14.AttachmentSupport = (doc.getObject("YZ_Plane003"), [""])
sketch14.MapMode = "FlatFace"
sketch14.AttachmentOffset = App.Placement(App.Vector(0, 0, -11), App.Rotation())
add_polygon(sketch14, [(-7, -55.1), (-7, -59.1), (-11.2, -59.1), (-11.2, -55.1)])  # lines 0-3
sketch14.addConstraint([
    Sketcher.Constraint("Vertical", 0),
    Sketcher.Constraint("Horizontal", 1),
    Sketcher.Constraint("Vertical", 2),
    Sketcher.Constraint("Horizontal", 3),
    Sketcher.Constraint("DistanceY", 0, 2, 0, 1, Q("4 mm")),
    Sketcher.Constraint("DistanceX", 0, 2, -1, 1, Q("7 mm")),
    Sketcher.Constraint("DistanceX", 1, 2, 1, 1, Q("4.201122 mm")),
    Sketcher.Constraint("DistanceY", 0, 2, -1, 1, Q("59.102904 mm")),
])
pocket9 = doc.addObject("PartDesign::Pocket", "Pocket008")
body4.addObject(pocket9)
pocket9.Profile = sketch14
pocket9.Length = 25
pocket9.Reversed = True

# Sketch on XZ plane
sketch15 = doc.addObject("Sketcher::SketchObject", "Sketch014")
body4.addObject(sketch15)
sketch15.AttachmentSupport = (doc.getObject("XZ_Plane003"), [""])
sketch15.MapMode = "FlatFace"
sketch15.AttachmentOffset = App.Placement(App.Vector(0, 0, -3), App.Rotation())
add_polygon(sketch15, [(2.5, -53.1), (2.5, -61.1), (-2.5, -61.1), (-2.5, -53.1)])  # lines 0-3
add_polygon(sketch15, [(6.5, -53.1), (6.5, -61.1), (4.5, -61.1), (4.5, -53.1)])  # lines 4-7
add_polygon(sketch15, [(-4.5, -53.1), (-4.5, -61.1), (-6.5, -61.1), (-6.5, -53.1)])  # lines 8-11
sketch15.addConstraint([
    Sketcher.Constraint("Vertical", 0),
    Sketcher.Constraint("Horizontal", 1),
    Sketcher.Constraint("Vertical", 2),
    Sketcher.Constraint("Horizontal", 3),
    Sketcher.Constraint("Vertical", 4),
    Sketcher.Constraint("Horizontal", 5),
    Sketcher.Constraint("Vertical", 6),
    Sketcher.Constraint("Horizontal", 7),
    Sketcher.Constraint("Vertical", 8),
    Sketcher.Constraint("Horizontal", 9),
    Sketcher.Constraint("Vertical", 10),
    Sketcher.Constraint("Horizontal", 11),
    Sketcher.Constraint("Symmetric", 5, 2, 8, 2, -2),
    Sketcher.Constraint("Symmetric", 7, 2, 10, 2, -2),
    Sketcher.Constraint("Horizontal", 1, 2, 4, 2),
    Sketcher.Constraint("Horizontal", 3, 2, 6, 2),
    Sketcher.Constraint("DistanceX", 1, 2, 1, 1, Q("5 mm")),
    Sketcher.Constraint("DistanceX", 5, 2, 5, 1, Q("2 mm")),
    Sketcher.Constraint("DistanceY", 0, 2, 0, 1, Q("8 mm")),
    Sketcher.Constraint("DistanceX", 0, 2, 4, 2, Q("4 mm")),
    Sketcher.Constraint("DistanceX", 8, 2, 1, 2, Q("2 mm")),
    Sketcher.Constraint("DistanceY", 0, 2, -1, 1, Q("61.102904 mm")),
])
pocket10 = doc.addObject("PartDesign::Pocket", "Pocket009")
body4.addObject(pocket10)
pocket10.Profile = sketch15
pocket10.Length = 25
pocket10.Reversed = True

# Sketch on XY plane
sketch16 = doc.addObject("Sketcher::SketchObject", "Sketch015")
body4.addObject(sketch16)
sketch16.AttachmentSupport = (doc.getObject("XY_Plane003"), [""])
sketch16.MapMode = "FlatFace"
sketch16.AttachmentOffset = App.Placement(App.Vector(0, 0, -64.102904), App.Rotation())
sketch16.addGeometry(Part.Circle(App.Vector(0, -5, 0), App.Vector(0, 0, 1), 2.5), False)
sketch16.addConstraint([
    Sketcher.Constraint("PointOnObject", 0, 3, -2),
    Sketcher.Constraint("Diameter", 0, Q("5 mm")),
    Sketcher.Constraint("DistanceY", 0, 3, -1, 1, Q("5 mm")),
])
pocket11 = doc.addObject("PartDesign::Pocket", "Pocket010")
body4.addObject(pocket11)
pocket11.Profile = sketch16
pocket11.Length = 25
pocket11.Reversed = True
doc.recompute()

fillet3 = doc.addObject("PartDesign::Fillet", "Fillet002")
body4.addObject(fillet3)
fillet3.Base = (pocket11, edges_at(pocket11, [
    (16, 1.5, -70.103),
    (16, 1.5, -44.103),
    (-16, 1.5, -70.103),
    (-16, 1.5, -44.103),
]))
fillet3.Radius = 0.5

doc.recompute()
